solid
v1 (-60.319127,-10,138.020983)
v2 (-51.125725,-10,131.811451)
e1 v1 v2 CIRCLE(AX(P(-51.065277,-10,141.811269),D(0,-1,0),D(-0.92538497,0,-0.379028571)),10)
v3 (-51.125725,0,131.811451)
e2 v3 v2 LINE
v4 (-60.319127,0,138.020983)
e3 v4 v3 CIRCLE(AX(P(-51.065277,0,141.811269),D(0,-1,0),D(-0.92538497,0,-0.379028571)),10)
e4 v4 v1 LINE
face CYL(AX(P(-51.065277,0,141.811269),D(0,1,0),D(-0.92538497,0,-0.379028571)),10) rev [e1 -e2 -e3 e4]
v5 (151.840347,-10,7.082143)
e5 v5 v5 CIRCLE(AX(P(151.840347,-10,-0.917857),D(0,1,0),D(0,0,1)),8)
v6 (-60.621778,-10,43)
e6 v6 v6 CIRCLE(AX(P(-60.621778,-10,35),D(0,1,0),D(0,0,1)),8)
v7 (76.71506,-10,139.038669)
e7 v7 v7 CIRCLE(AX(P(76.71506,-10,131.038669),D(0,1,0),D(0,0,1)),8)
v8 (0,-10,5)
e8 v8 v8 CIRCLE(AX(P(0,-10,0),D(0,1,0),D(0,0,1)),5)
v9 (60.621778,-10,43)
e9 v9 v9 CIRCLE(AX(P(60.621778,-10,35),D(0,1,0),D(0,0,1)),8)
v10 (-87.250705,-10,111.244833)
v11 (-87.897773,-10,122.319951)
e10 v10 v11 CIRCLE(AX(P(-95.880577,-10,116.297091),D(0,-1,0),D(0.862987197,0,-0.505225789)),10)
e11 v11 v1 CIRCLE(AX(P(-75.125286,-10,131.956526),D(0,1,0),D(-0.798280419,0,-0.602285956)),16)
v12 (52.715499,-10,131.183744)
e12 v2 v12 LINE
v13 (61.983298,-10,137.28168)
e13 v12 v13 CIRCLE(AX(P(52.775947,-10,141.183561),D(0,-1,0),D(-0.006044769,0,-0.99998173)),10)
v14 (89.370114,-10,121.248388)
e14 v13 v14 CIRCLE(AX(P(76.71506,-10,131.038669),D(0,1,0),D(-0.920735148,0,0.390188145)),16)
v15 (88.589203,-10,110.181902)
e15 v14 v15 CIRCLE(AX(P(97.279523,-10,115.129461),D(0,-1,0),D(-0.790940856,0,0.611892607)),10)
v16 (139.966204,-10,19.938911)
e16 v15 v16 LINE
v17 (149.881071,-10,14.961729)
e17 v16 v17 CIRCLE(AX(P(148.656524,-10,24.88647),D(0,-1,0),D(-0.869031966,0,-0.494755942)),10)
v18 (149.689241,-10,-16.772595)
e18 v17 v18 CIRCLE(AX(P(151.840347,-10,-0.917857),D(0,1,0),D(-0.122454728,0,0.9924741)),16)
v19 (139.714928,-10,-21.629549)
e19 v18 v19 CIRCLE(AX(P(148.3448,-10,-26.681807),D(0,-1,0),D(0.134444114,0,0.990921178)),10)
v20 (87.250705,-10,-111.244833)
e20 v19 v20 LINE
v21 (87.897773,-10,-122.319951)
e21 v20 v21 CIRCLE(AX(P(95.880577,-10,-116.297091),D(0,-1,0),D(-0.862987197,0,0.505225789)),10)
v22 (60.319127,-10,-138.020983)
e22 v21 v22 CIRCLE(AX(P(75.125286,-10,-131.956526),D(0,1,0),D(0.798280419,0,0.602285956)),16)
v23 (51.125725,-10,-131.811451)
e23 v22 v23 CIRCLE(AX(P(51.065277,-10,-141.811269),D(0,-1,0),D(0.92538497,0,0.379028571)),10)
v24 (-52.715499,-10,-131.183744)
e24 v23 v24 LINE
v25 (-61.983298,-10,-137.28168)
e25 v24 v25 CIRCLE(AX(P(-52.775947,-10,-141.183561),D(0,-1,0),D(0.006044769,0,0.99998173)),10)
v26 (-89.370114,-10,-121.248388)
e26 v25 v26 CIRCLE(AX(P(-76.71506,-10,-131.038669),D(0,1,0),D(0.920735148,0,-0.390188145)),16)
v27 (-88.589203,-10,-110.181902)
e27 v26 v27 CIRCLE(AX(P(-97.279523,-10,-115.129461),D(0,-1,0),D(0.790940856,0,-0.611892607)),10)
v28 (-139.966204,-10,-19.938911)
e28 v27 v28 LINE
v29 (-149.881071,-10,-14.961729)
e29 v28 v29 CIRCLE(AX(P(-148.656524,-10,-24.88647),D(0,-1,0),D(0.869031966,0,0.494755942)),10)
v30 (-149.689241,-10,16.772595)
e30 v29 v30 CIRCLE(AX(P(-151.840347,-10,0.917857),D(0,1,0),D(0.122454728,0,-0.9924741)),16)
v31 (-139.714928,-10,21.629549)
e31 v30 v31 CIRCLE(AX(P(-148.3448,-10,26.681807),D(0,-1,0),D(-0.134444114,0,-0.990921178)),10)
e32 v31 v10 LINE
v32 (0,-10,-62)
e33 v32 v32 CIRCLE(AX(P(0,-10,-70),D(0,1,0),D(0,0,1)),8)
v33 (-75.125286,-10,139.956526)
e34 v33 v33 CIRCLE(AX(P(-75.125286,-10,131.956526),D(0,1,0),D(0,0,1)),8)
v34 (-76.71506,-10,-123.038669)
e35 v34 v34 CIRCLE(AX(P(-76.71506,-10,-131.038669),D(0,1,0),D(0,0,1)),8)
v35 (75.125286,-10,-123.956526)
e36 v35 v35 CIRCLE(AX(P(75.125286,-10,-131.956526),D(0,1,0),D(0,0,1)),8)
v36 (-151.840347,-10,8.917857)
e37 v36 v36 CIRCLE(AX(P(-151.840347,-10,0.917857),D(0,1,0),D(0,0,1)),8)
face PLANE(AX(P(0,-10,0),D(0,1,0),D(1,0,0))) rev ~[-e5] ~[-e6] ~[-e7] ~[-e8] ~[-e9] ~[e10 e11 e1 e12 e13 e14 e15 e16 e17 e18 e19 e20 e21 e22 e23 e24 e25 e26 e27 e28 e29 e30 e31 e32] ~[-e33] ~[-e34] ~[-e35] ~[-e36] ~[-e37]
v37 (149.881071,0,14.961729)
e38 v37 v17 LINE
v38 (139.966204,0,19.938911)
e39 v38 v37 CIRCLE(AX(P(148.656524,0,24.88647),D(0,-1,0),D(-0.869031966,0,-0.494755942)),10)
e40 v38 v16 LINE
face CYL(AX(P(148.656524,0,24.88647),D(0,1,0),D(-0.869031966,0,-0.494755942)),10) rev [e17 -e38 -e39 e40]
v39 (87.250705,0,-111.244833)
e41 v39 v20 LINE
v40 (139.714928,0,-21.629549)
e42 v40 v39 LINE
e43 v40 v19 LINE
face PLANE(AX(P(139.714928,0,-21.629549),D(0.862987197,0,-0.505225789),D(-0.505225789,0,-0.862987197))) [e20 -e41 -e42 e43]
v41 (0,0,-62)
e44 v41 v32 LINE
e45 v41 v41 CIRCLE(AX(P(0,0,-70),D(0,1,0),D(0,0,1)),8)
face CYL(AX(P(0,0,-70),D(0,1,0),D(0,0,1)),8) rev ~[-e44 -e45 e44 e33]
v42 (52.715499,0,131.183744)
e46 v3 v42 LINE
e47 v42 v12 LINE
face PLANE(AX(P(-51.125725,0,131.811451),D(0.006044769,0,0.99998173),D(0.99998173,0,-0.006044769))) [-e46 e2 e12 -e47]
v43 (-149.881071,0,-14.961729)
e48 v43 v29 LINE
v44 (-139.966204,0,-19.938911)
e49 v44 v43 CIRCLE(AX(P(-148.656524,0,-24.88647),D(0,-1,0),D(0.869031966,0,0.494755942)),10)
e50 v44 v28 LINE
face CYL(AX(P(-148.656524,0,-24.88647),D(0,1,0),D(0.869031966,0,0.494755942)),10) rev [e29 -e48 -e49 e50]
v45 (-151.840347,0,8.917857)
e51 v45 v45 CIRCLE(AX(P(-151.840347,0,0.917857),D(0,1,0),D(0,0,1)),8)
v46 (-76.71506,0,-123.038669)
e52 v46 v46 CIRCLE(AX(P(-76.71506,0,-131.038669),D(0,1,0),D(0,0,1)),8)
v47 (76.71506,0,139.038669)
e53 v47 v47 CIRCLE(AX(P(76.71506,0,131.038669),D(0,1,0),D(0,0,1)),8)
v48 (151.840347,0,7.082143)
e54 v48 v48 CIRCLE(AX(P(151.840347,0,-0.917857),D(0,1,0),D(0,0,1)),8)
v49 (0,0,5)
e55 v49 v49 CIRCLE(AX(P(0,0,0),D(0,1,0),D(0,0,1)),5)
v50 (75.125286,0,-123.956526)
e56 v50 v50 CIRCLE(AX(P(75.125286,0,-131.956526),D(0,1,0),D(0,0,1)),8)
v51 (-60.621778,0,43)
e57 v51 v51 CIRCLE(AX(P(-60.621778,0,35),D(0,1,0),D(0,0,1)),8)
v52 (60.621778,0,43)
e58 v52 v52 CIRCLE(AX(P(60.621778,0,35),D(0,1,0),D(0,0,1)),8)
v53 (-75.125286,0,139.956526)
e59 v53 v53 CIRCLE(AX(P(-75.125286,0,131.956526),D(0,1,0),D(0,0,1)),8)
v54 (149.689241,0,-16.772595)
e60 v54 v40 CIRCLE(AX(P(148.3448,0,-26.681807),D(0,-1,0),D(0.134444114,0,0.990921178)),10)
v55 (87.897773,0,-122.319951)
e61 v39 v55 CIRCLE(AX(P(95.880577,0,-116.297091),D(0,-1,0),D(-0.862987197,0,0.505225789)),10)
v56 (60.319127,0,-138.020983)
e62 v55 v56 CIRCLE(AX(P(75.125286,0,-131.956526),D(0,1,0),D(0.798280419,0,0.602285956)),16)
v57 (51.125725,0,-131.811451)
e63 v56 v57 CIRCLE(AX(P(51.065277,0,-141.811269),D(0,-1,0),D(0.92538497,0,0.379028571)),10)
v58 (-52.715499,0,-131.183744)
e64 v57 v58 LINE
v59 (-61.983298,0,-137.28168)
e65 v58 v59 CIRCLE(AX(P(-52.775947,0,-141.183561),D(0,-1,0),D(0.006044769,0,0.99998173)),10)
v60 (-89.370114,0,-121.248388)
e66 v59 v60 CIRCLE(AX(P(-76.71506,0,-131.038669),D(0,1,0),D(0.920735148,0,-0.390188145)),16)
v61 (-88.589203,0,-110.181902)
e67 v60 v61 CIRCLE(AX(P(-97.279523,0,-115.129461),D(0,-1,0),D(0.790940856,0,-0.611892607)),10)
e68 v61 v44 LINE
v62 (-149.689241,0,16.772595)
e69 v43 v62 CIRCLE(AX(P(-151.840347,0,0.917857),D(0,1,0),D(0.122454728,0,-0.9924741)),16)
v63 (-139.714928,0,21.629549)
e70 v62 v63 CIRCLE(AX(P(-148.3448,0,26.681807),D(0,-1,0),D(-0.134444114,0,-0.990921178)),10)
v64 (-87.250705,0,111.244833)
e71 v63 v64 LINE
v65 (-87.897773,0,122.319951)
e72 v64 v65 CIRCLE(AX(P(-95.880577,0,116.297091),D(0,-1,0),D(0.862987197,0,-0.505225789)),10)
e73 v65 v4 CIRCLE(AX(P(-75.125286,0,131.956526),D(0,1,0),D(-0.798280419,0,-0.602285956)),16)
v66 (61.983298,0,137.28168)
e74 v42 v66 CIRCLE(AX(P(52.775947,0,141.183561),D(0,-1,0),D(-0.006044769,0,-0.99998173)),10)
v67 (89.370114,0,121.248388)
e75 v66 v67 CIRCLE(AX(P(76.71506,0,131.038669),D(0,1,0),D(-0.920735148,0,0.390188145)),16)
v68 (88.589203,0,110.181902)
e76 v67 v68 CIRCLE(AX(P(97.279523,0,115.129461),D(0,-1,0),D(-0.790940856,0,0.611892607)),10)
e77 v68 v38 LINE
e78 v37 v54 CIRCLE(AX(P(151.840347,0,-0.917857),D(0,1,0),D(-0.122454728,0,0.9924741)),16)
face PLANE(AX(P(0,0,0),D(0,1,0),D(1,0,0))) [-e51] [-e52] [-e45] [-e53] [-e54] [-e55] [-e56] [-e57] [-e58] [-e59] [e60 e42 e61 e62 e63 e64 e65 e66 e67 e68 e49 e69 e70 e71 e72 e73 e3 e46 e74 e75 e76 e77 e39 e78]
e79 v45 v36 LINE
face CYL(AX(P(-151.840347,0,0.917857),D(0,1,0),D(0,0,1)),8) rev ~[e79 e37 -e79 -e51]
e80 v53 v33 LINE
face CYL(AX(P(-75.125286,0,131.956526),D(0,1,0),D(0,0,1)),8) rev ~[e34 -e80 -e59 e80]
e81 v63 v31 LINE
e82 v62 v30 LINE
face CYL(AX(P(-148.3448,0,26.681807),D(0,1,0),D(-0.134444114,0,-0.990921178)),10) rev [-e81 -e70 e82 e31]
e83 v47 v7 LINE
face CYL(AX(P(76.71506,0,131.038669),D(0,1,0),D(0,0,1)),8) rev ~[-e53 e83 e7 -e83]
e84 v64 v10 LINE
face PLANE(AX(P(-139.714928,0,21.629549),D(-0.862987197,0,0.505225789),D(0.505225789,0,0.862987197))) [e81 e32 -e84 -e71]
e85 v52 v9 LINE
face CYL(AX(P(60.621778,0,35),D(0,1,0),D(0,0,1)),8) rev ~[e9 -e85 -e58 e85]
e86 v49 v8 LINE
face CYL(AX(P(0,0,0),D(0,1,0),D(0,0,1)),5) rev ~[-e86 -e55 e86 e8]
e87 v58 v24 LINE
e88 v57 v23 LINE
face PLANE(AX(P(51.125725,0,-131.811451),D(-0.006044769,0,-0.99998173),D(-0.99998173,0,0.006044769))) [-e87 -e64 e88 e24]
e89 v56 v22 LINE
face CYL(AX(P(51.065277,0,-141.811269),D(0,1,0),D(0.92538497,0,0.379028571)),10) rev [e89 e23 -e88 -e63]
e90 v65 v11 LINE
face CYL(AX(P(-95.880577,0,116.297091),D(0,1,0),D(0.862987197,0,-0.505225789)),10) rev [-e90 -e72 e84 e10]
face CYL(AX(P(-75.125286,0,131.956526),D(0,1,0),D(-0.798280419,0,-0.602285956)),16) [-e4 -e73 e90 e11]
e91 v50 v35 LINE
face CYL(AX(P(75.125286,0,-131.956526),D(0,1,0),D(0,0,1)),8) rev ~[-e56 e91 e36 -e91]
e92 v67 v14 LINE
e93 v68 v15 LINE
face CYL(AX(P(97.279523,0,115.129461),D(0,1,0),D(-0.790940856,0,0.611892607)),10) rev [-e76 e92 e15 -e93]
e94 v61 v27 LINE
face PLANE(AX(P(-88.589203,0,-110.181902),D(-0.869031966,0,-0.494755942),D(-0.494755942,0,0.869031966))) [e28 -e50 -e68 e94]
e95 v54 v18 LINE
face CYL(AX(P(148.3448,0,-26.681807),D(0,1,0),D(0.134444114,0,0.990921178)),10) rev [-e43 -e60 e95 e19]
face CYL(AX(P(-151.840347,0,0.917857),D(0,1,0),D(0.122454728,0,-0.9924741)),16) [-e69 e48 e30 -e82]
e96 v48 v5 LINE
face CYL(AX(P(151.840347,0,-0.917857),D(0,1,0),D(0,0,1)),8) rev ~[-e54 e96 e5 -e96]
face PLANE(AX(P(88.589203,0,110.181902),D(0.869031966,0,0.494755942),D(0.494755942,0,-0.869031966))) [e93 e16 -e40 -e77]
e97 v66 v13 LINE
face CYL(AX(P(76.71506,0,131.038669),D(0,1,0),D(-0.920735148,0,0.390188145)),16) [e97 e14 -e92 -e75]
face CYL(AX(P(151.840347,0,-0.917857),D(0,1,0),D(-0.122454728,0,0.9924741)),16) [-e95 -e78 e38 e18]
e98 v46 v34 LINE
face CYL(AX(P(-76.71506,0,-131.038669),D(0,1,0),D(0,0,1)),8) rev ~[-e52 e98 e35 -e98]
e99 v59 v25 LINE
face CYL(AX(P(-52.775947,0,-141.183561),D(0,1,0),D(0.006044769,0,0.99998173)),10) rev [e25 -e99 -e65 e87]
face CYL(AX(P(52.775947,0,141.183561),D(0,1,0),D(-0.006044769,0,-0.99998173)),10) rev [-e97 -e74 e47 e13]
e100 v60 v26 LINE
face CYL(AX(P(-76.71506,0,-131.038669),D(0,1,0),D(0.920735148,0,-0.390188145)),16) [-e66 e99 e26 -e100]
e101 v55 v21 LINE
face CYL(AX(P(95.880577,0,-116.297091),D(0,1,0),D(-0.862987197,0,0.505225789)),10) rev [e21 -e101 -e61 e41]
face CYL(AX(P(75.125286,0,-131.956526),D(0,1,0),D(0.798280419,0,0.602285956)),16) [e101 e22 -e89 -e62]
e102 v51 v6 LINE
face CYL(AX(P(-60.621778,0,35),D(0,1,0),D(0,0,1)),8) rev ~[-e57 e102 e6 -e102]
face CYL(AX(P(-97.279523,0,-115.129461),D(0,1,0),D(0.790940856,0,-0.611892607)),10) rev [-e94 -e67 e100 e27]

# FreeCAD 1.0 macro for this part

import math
import FreeCAD as App
import Part
import Sketcher

V = App.Vector
Q = App.Units.Quantity

doc = App.newDocument("Part")
body = doc.addObject("PartDesign::Body", "Body")

sketch1 = body.newObject("Sketcher::SketchObject", "Sketch")
sketch1.AttachmentSupport = (doc.getObject("XZ_Plane"), [""])
sketch1.MapMode = "FlatFace"
sketch1.addGeometry([
    Part.LineSegment(V(88.589203, 110.181902, 0), V(139.966204, 19.938911, 0)),
    Part.ArcOfCircle(Part.Circle(V(148.656524, 24.88647, 0), V(0, 0, 1), 10), math.radians(-150.346342), math.radians(-82.966207)),
    Part.ArcOfCircle(Part.Circle(V(151.840347, -0.917857, 0), V(0, 0, 1), 16), math.radians(-97.726477), math.radians(97.033793)),
    Part.ArcOfCircle(Part.Circle(V(148.3448, -26.681807, 0), V(0, 0, 1), 10), math.radians(82.273523), math.radians(149.653658)),
    Part.LineSegment(V(139.714928, -21.629549, 0), V(87.250705, -111.244833, 0)),
    Part.ArcOfCircle(Part.Circle(V(95.880577, -116.297091, 0), V(0, 0, 1), 10), math.radians(149.653658), math.radians(217.033793)),
    Part.ArcOfCircle(Part.Circle(V(75.125286, -131.956526, 0), V(0, 0, 1), 16), math.radians(-157.726477), math.radians(37.033793)),
    Part.ArcOfCircle(Part.Circle(V(51.065277, -141.811269, 0), V(0, 0, 1), 10), math.radians(22.273523), math.radians(89.653658)),
    Part.LineSegment(V(51.125725, -131.811451, 0), V(-52.715499, -131.183744, 0)),
    Part.ArcOfCircle(Part.Circle(V(-52.775947, -141.183561, 0), V(0, 0, 1), 10), math.radians(89.653658), math.radians(157.033793)),
    Part.ArcOfCircle(Part.Circle(V(-76.71506, -131.038669, 0), V(0, 0, 1), 16), math.radians(142.273523), math.radians(337.033793)),
    Part.ArcOfCircle(Part.Circle(V(-97.279523, -115.129461, 0), V(0, 0, 1), 10), math.radians(-37.726477), math.radians(29.653658)),
    Part.LineSegment(V(-88.589203, -110.181902, 0), V(-139.966204, -19.938911, 0)),
    Part.ArcOfCircle(Part.Circle(V(-148.656524, -24.88647, 0), V(0, 0, 1), 10), math.radians(29.653658), math.radians(97.033793)),
    Part.ArcOfCircle(Part.Circle(V(-151.840347, 0.917857, 0), V(0, 0, 1), 16), math.radians(82.273523), math.radians(277.033793)),
    Part.ArcOfCircle(Part.Circle(V(-148.3448, 26.681807, 0), V(0, 0, 1), 10), math.radians(-97.726477), math.radians(-30.346342)),
    Part.LineSegment(V(-139.714928, 21.629549, 0), V(-87.250705, 111.244833, 0)),
    Part.ArcOfCircle(Part.Circle(V(-95.880577, 116.297091, 0), V(0, 0, 1), 10), math.radians(-30.346342), math.radians(37.033793)),
    Part.ArcOfCircle(Part.Circle(V(-75.125286, 131.956526, 0), V(0, 0, 1), 16), math.radians(22.273523), math.radians(217.033793)),
    Part.ArcOfCircle(Part.Circle(V(-51.065277, 141.811269, 0), V(0, 0, 1), 10), math.radians(-157.726477), math.radians(-90.346342)),
    Part.LineSegment(V(-51.125725, 131.811451, 0), V(52.715499, 131.183744, 0)),
    Part.ArcOfCircle(Part.Circle(V(52.775947, 141.183561, 0), V(0, 0, 1), 10), math.radians(-90.346342), math.radians(-22.966207)),
    Part.ArcOfCircle(Part.Circle(V(76.71506, 131.038669, 0), V(0, 0, 1), 16), math.radians(-37.726477), math.radians(157.033793)),
    Part.ArcOfCircle(Part.Circle(V(97.279523, 115.129461, 0), V(0, 0, 1), 10), math.radians(142.273523), math.radians(209.653658)),
    Part.Circle(V(-75.125286, 131.956526, 0), V(0, 0, 1), 8),
    Part.Circle(V(-151.840347, 0.917857, 0), V(0, 0, 1), 8),
    Part.Circle(V(-60.621778, 35, 0), V(0, 0, 1), 8),
    Part.Circle(V(76.71506, 131.038669, 0), V(0, 0, 1), 8),
    Part.Circle(V(60.621778, 35, 0), V(0, 0, 1), 8),
    Part.Circle(V(-76.71506, -131.038669, 0), V(0, 0, 1), 8),
    Part.Circle(V(0, 0, 0), V(0, 0, 1), 5),
    Part.Circle(V(151.840347, -0.917857, 0), V(0, 0, 1), 8),
    Part.Circle(V(0, -70, 0), V(0, 0, 1), 8),
    Part.Circle(V(75.125286, -131.956526, 0), V(0, 0, 1), 8),
], False)
sketch1.addConstraint([
    Sketcher.Constraint("Tangent", 0, 2, 1, 1),
    Sketcher.Constraint("Tangent", 1, 2, 2, 2),
    Sketcher.Constraint("Tangent", 2, 1, 3, 1),
    Sketcher.Constraint("Tangent", 3, 2, 4, 1),
    Sketcher.Constraint("Tangent", 4, 2, 5, 1),
    Sketcher.Constraint("Tangent", 5, 2, 6, 2),
    Sketcher.Constraint("Tangent", 6, 1, 7, 1),
    Sketcher.Constraint("Tangent", 7, 2, 8, 1),
    Sketcher.Constraint("Tangent", 8, 2, 9, 1),
    Sketcher.Constraint("Tangent", 9, 2, 10, 2),
    Sketcher.Constraint("Tangent", 10, 1, 11, 1),
    Sketcher.Constraint("Tangent", 11, 2, 12, 1),
    Sketcher.Constraint("Tangent", 12, 2, 13, 1),
    Sketcher.Constraint("Tangent", 13, 2, 14, 2),
    Sketcher.Constraint("Tangent", 14, 1, 15, 1),
    Sketcher.Constraint("Tangent", 15, 2, 16, 1),
    Sketcher.Constraint("Tangent", 16, 2, 17, 1),
    Sketcher.Constraint("Tangent", 17, 2, 18, 2),
    Sketcher.Constraint("Tangent", 18, 1, 19, 1),
    Sketcher.Constraint("Tangent", 19, 2, 20, 1),
    Sketcher.Constraint("Tangent", 20, 2, 21, 1),
    Sketcher.Constraint("Tangent", 21, 2, 22, 2),
    Sketcher.Constraint("Tangent", 22, 1, 23, 1),
    Sketcher.Constraint("Tangent", 23, 2, 0, 1),
    Sketcher.Constraint("Coincident", 30, 3, -1, 1),
    Sketcher.Constraint("Coincident", 24, 3, 18, 3),
    Sketcher.Constraint("Coincident", 25, 3, 14, 3),
    Sketcher.Constraint("Coincident", 27, 3, 22, 3),
    Sketcher.Constraint("Coincident", 29, 3, 10, 3),
    Sketcher.Constraint("Coincident", 31, 3, 2, 3),
    Sketcher.Constraint("Coincident", 33, 3, 6, 3),
    Sketcher.Constraint("Equal", 1, 3),
    Sketcher.Constraint("Equal", 3, 5),
    Sketcher.Constraint("Equal", 2, 6),
    Sketcher.Constraint("Equal", 5, 7),
    Sketcher.Constraint("Equal", 7, 9),
    Sketcher.Constraint("Equal", 6, 10),
    Sketcher.Constraint("Equal", 9, 11),
    Sketcher.Constraint("Equal", 11, 13),
    Sketcher.Constraint("Equal", 10, 14),
    Sketcher.Constraint("Equal", 13, 15),
    Sketcher.Constraint("Equal", 15, 17),
    Sketcher.Constraint("Equal", 14, 18),
    Sketcher.Constraint("Equal", 17, 19),
    Sketcher.Constraint("Equal", 19, 21),
    Sketcher.Constraint("Equal", 18, 22),
    Sketcher.Constraint("Equal", 21, 23),
    Sketcher.Constraint("Equal", 24, 25),
    Sketcher.Constraint("Equal", 25, 26),
    Sketcher.Constraint("Equal", 26, 27),
    Sketcher.Constraint("Equal", 27, 28),
    Sketcher.Constraint("Equal", 28, 29),
    Sketcher.Constraint("Equal", 29, 31),
    Sketcher.Constraint("Equal", 31, 32),
    Sketcher.Constraint("Equal", 32, 33),
    Sketcher.Constraint("Symmetric", 1, 3, 13, 3, -1, 1),
    Sketcher.Constraint("Symmetric", 3, 3, 15, 3, -1, 1),
    Sketcher.Constraint("Symmetric", 5, 3, 17, 3, -1, 1),
    Sketcher.Constraint("Symmetric", 7, 3, 19, 3, -1, 1),
    Sketcher.Constraint("Symmetric", 9, 3, 21, 3, -1, 1),
    Sketcher.Constraint("Symmetric", 11, 3, 23, 3, -1, 1),
    Sketcher.Constraint("Symmetric", 26, 3, 28, 3, -2),
    Sketcher.Constraint("PointOnObject", 32, 3, -2),
    Sketcher.Constraint("Equal", 0, 4),
    Sketcher.Constraint("Equal", 4, 8),
    Sketcher.Constraint("Diameter", 24, Q("16 mm")),
    Sketcher.Constraint("Diameter", 30, Q("10 mm")),
    Sketcher.Constraint("Radius", 1, Q("10 mm")),
    Sketcher.Constraint("Radius", 2, Q("16 mm")),
    Sketcher.Constraint("DistanceY", -1, 1, 26, 3, Q("35 mm")),
    Sketcher.Constraint("DistanceY", 32, 3, -1, 1, Q("70 mm")),
    Sketcher.Constraint("DistanceX", 13, 3, 11, 3, Q("51.377001 mm")),
    Sketcher.Constraint("DistanceX", -1, 1, 3, 3, Q("148.3448 mm")),
    Sketcher.Constraint("DistanceX", 8, 2, -1, 1, Q("52.715499 mm")),
    Sketcher.Constraint("DistanceX", 9, 2, -1, 1, Q("61.983298 mm")),
    Sketcher.Constraint("DistanceX", 7, 3, 5, 3, Q("44.8153 mm")),
    Sketcher.Constraint("DistanceY", 7, 3, 10, 3, Q("10.772599 mm")),
    Sketcher.Constraint("DistanceY", 9, 3, 11, 3, Q("26.0541 mm")),
    Sketcher.Constraint("DistanceX", 11, 3, 7, 3, Q("148.3448 mm")),
    Sketcher.Constraint("DistanceX", 14, 3, 9, 3, Q("99.0644 mm")),
    Sketcher.Constraint("DistanceX", 17, 3, 26, 3, Q("35.258799 mm")),
    Sketcher.Constraint("DistanceY", 7, 2, 5, 2, Q("9.491501 mm")),
])
pad1 = body.newObject("PartDesign::Pad", "Pad")
pad1.Profile = sketch1
pad1.Length = 10

doc.recompute()
